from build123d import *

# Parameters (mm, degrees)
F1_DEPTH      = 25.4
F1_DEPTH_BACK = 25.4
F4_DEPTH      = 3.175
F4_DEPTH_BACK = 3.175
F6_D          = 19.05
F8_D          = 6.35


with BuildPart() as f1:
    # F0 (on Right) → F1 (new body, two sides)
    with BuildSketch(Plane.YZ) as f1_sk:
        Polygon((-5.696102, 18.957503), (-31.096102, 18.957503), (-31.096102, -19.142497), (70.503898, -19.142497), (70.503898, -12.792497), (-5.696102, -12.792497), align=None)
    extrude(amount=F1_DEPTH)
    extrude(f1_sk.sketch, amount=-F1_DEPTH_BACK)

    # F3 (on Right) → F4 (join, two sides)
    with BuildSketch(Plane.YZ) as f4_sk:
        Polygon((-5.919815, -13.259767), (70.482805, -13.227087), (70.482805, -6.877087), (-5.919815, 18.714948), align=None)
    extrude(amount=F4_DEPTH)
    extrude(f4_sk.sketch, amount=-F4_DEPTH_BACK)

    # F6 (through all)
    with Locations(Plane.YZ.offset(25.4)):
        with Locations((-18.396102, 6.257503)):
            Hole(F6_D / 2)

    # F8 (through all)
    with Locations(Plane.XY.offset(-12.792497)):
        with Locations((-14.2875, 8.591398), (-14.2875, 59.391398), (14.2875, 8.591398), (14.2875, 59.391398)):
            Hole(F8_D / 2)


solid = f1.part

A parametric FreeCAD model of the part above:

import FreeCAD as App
import Part
import Sketcher
from FreeCAD import Vector
Q = App.Units.Quantity

doc = App.newDocument("Part")
body = doc.addObject("PartDesign::Body", "Body")

sketch1 = doc.addObject("Sketcher::SketchObject", "Sketch")
body.addObject(sketch1)
sketch1.AttachmentSupport = (doc.YZ_Plane, [""])
sketch1.MapMode = "FlatFace"
sketch1.addGeometry(Part.LineSegment(Vector(-6, 19, 0), Vector(-31, 19, 0)), False)
sketch1.addGeometry(Part.LineSegment(Vector(-31, 19, 0), Vector(-31, -19, 0)), False)
sketch1.addGeometry(Part.LineSegment(Vector(-31, -19, 0), Vector(71, -19, 0)), False)
sketch1.addGeometry(Part.LineSegment(Vector(71, -19, 0), Vector(71, -13, 0)), False)
sketch1.addGeometry(Part.LineSegment(Vector(71, -13, 0), Vector(-6, -13, 0)), False)
sketch1.addGeometry(Part.LineSegment(Vector(-6, -13, 0), Vector(-6, 19, 0)), False)
sketch1.addConstraint(Sketcher.Constraint("Coincident", 0, 2, 1, 1))
sketch1.addConstraint(Sketcher.Constraint("Coincident", 1, 2, 2, 1))
sketch1.addConstraint(Sketcher.Constraint("Coincident", 2, 2, 3, 1))
sketch1.addConstraint(Sketcher.Constraint("Coincident", 3, 2, 4, 1))
sketch1.addConstraint(Sketcher.Constraint("Coincident", 4, 2, 5, 1))
sketch1.addConstraint(Sketcher.Constraint("Coincident", 5, 2, 0, 1))
sketch1.addConstraint(Sketcher.Constraint("Horizontal", 0))
sketch1.addConstraint(Sketcher.Constraint("Vertical", 1))
sketch1.addConstraint(Sketcher.Constraint("Horizontal", 2))
sketch1.addConstraint(Sketcher.Constraint("Vertical", 3))
sketch1.addConstraint(Sketcher.Constraint("Horizontal", 4))
sketch1.addConstraint(Sketcher.Constraint("Vertical", 5))
sketch1.addConstraint(Sketcher.Constraint("DistanceX", 0, 2, 0, 1, Q("1 in")))
sketch1.addConstraint(Sketcher.Constraint("DistanceX", 2, 1, 2, 2, Q("4 in")))
sketch1.addConstraint(Sketcher.Constraint("DistanceY", 1, 2, 1, 1, Q("1.5 in")))
sketch1.addConstraint(Sketcher.Constraint("DistanceY", 3, 1, 3, 2, Q("0.25 in")))
sketch1.addConstraint(Sketcher.Constraint("DistanceX", 0, 2, -1, 1, 31.096102))
sketch1.addConstraint(Sketcher.Constraint("DistanceY", -1, 1, 0, 2, 18.957503))
pad1 = doc.addObject("PartDesign::Pad", "Pad")
body.addObject(pad1)
pad1.Profile = sketch1
pad1.Type = "TwoLengths"
pad1.Length = Q("1 in")
pad1.Length2 = Q("1 in")

sketch2 = doc.addObject("Sketcher::SketchObject", "Sketch001")
body.addObject(sketch2)
sketch2.AttachmentSupport = (doc.YZ_Plane, [""])
sketch2.MapMode = "FlatFace"
sketch2.addGeometry(Part.LineSegment(Vector(-6, -13, 0), Vector(70, -13, 0)), False)
sketch2.addGeometry(Part.LineSegment(Vector(70, -13, 0), Vector(70, -7, 0)), False)
sketch2.addGeometry(Part.LineSegment(Vector(70, -7, 0), Vector(-6, 19, 0)), False)
sketch2.addGeometry(Part.LineSegment(Vector(-6, 19, 0), Vector(-6, -13, 0)), False)
sketch2.addConstraint(Sketcher.Constraint("Coincident", 0, 2, 1, 1))
sketch2.addConstraint(Sketcher.Constraint("Coincident", 1, 2, 2, 1))
sketch2.addConstraint(Sketcher.Constraint("Coincident", 2, 2, 3, 1))
sketch2.addConstraint(Sketcher.Constraint("Coincident", 3, 2, 0, 1))
sketch2.addConstraint(Sketcher.Constraint("Vertical", 1))
sketch2.addConstraint(Sketcher.Constraint("Vertical", 3))
sketch2.addConstraint(Sketcher.Constraint("DistanceY", 1, 1, 1, 2, Q("0.25 in")))
sketch2.addConstraint(Sketcher.Constraint("Distance", 2, 80.574888))
sketch2.addConstraint(Sketcher.Constraint("DistanceY", 3, 2, 3, 1, 31.974715))
sketch2.addConstraint(Sketcher.Constraint("DistanceX", 2, 2, 1, 2, 76.40262))
sketch2.addConstraint(Sketcher.Constraint("DistanceX", -1, 1, 0, 2, 70.482805))
sketch2.addConstraint(Sketcher.Constraint("DistanceY", 0, 2, -1, 1, 13.227087))
pad2 = doc.addObject("PartDesign::Pad", "Pad001")
body.addObject(pad2)
pad2.Profile = sketch2
pad2.Type = "TwoLengths"
pad2.Length = Q("0.125 in")
pad2.Length2 = Q("0.125 in")

sketch3 = doc.addObject("Sketcher::SketchObject", "Sketch002")
body.addObject(sketch3)
sketch3.AttachmentSupport = (doc.YZ_Plane, [""])
sketch3.MapMode = "FlatFace"
sketch3.AttachmentOffset = App.Placement(Vector(0, 0, 1 * 25.4), App.Rotation())
sketch3.addGeometry(Part.Circle(Vector(-18, 6, 0), Vector(0, 0, 1), 10), False)
sketch3.addConstraint(Sketcher.Constraint("Diameter", 0, Q("0.75 in")))
sketch3.addConstraint(Sketcher.Constraint("DistanceX", 0, 3, -1, 1, 18.396102))
sketch3.addConstraint(Sketcher.Constraint("DistanceY", -1, 1, 0, 3, 6.257503))
doc.recompute()
hole = doc.addObject("PartDesign::Hole", "Hole")
body.addObject(hole)
hole.Profile = sketch3
hole.ThreadType = "None"
hole.Diameter = Q("0.75 in")
hole.DepthType = "ThroughAll"

sketch4 = doc.addObject("Sketcher::SketchObject", "Sketch003")
body.addObject(sketch4)
sketch4.AttachmentSupport = (doc.XY_Plane, [""])
sketch4.MapMode = "FlatFace"
sketch4.AttachmentOffset = App.Placement(Vector(0, 0, -12.792497), App.Rotation())
sketch4.addGeometry(Part.Circle(Vector(-14.3, 8.6, 0), Vector(0, 0, 1), 3.2), False)
sketch4.addGeometry(Part.Circle(Vector(-14.3, 59.4, 0), Vector(0, 0, 1), 3.2), False)
sketch4.addGeometry(Part.Circle(Vector(14.3, 8.6, 0), Vector(0, 0, 1), 3.2), False)
sketch4.addGeometry(Part.Circle(Vector(14.3, 59.4, 0), Vector(0, 0, 1), 3.2), False)
sketch4.addConstraint(Sketcher.Constraint("Equal", 0, 1))
sketch4.addConstraint(Sketcher.Constraint("Equal", 1, 2))
sketch4.addConstraint(Sketcher.Constraint("Equal", 2, 3))
sketch4.addConstraint(Sketcher.Constraint("Symmetric", 0, 3, 2, 3, -2))
sketch4.addConstraint(Sketcher.Constraint("Symmetric", 1, 3, 3, 3, -2))
sketch4.addConstraint(Sketcher.Constraint("Vertical", 0, 3, 1, 3))
sketch4.addConstraint(Sketcher.Constraint("Diameter", 0, Q("0.25 in")))
sketch4.addConstraint(Sketcher.Constraint("DistanceY", 0, 3, 1, 3, Q("2 in")))
sketch4.addConstraint(Sketcher.Constraint("DistanceX", 0, 3, -1, 1, Q("0.5625 in")))
sketch4.addConstraint(Sketcher.Constraint("DistanceY", -1, 1, 1, 3, 59.391398))
doc.recompute()
hole2 = doc.addObject("PartDesign::Hole", "Hole001")
body.addObject(hole2)
hole2.Profile = sketch4
hole2.ThreadType = "None"
hole2.Diameter = Q("0.25 in")
hole2.DepthType = "ThroughAll"

doc.recompute()
